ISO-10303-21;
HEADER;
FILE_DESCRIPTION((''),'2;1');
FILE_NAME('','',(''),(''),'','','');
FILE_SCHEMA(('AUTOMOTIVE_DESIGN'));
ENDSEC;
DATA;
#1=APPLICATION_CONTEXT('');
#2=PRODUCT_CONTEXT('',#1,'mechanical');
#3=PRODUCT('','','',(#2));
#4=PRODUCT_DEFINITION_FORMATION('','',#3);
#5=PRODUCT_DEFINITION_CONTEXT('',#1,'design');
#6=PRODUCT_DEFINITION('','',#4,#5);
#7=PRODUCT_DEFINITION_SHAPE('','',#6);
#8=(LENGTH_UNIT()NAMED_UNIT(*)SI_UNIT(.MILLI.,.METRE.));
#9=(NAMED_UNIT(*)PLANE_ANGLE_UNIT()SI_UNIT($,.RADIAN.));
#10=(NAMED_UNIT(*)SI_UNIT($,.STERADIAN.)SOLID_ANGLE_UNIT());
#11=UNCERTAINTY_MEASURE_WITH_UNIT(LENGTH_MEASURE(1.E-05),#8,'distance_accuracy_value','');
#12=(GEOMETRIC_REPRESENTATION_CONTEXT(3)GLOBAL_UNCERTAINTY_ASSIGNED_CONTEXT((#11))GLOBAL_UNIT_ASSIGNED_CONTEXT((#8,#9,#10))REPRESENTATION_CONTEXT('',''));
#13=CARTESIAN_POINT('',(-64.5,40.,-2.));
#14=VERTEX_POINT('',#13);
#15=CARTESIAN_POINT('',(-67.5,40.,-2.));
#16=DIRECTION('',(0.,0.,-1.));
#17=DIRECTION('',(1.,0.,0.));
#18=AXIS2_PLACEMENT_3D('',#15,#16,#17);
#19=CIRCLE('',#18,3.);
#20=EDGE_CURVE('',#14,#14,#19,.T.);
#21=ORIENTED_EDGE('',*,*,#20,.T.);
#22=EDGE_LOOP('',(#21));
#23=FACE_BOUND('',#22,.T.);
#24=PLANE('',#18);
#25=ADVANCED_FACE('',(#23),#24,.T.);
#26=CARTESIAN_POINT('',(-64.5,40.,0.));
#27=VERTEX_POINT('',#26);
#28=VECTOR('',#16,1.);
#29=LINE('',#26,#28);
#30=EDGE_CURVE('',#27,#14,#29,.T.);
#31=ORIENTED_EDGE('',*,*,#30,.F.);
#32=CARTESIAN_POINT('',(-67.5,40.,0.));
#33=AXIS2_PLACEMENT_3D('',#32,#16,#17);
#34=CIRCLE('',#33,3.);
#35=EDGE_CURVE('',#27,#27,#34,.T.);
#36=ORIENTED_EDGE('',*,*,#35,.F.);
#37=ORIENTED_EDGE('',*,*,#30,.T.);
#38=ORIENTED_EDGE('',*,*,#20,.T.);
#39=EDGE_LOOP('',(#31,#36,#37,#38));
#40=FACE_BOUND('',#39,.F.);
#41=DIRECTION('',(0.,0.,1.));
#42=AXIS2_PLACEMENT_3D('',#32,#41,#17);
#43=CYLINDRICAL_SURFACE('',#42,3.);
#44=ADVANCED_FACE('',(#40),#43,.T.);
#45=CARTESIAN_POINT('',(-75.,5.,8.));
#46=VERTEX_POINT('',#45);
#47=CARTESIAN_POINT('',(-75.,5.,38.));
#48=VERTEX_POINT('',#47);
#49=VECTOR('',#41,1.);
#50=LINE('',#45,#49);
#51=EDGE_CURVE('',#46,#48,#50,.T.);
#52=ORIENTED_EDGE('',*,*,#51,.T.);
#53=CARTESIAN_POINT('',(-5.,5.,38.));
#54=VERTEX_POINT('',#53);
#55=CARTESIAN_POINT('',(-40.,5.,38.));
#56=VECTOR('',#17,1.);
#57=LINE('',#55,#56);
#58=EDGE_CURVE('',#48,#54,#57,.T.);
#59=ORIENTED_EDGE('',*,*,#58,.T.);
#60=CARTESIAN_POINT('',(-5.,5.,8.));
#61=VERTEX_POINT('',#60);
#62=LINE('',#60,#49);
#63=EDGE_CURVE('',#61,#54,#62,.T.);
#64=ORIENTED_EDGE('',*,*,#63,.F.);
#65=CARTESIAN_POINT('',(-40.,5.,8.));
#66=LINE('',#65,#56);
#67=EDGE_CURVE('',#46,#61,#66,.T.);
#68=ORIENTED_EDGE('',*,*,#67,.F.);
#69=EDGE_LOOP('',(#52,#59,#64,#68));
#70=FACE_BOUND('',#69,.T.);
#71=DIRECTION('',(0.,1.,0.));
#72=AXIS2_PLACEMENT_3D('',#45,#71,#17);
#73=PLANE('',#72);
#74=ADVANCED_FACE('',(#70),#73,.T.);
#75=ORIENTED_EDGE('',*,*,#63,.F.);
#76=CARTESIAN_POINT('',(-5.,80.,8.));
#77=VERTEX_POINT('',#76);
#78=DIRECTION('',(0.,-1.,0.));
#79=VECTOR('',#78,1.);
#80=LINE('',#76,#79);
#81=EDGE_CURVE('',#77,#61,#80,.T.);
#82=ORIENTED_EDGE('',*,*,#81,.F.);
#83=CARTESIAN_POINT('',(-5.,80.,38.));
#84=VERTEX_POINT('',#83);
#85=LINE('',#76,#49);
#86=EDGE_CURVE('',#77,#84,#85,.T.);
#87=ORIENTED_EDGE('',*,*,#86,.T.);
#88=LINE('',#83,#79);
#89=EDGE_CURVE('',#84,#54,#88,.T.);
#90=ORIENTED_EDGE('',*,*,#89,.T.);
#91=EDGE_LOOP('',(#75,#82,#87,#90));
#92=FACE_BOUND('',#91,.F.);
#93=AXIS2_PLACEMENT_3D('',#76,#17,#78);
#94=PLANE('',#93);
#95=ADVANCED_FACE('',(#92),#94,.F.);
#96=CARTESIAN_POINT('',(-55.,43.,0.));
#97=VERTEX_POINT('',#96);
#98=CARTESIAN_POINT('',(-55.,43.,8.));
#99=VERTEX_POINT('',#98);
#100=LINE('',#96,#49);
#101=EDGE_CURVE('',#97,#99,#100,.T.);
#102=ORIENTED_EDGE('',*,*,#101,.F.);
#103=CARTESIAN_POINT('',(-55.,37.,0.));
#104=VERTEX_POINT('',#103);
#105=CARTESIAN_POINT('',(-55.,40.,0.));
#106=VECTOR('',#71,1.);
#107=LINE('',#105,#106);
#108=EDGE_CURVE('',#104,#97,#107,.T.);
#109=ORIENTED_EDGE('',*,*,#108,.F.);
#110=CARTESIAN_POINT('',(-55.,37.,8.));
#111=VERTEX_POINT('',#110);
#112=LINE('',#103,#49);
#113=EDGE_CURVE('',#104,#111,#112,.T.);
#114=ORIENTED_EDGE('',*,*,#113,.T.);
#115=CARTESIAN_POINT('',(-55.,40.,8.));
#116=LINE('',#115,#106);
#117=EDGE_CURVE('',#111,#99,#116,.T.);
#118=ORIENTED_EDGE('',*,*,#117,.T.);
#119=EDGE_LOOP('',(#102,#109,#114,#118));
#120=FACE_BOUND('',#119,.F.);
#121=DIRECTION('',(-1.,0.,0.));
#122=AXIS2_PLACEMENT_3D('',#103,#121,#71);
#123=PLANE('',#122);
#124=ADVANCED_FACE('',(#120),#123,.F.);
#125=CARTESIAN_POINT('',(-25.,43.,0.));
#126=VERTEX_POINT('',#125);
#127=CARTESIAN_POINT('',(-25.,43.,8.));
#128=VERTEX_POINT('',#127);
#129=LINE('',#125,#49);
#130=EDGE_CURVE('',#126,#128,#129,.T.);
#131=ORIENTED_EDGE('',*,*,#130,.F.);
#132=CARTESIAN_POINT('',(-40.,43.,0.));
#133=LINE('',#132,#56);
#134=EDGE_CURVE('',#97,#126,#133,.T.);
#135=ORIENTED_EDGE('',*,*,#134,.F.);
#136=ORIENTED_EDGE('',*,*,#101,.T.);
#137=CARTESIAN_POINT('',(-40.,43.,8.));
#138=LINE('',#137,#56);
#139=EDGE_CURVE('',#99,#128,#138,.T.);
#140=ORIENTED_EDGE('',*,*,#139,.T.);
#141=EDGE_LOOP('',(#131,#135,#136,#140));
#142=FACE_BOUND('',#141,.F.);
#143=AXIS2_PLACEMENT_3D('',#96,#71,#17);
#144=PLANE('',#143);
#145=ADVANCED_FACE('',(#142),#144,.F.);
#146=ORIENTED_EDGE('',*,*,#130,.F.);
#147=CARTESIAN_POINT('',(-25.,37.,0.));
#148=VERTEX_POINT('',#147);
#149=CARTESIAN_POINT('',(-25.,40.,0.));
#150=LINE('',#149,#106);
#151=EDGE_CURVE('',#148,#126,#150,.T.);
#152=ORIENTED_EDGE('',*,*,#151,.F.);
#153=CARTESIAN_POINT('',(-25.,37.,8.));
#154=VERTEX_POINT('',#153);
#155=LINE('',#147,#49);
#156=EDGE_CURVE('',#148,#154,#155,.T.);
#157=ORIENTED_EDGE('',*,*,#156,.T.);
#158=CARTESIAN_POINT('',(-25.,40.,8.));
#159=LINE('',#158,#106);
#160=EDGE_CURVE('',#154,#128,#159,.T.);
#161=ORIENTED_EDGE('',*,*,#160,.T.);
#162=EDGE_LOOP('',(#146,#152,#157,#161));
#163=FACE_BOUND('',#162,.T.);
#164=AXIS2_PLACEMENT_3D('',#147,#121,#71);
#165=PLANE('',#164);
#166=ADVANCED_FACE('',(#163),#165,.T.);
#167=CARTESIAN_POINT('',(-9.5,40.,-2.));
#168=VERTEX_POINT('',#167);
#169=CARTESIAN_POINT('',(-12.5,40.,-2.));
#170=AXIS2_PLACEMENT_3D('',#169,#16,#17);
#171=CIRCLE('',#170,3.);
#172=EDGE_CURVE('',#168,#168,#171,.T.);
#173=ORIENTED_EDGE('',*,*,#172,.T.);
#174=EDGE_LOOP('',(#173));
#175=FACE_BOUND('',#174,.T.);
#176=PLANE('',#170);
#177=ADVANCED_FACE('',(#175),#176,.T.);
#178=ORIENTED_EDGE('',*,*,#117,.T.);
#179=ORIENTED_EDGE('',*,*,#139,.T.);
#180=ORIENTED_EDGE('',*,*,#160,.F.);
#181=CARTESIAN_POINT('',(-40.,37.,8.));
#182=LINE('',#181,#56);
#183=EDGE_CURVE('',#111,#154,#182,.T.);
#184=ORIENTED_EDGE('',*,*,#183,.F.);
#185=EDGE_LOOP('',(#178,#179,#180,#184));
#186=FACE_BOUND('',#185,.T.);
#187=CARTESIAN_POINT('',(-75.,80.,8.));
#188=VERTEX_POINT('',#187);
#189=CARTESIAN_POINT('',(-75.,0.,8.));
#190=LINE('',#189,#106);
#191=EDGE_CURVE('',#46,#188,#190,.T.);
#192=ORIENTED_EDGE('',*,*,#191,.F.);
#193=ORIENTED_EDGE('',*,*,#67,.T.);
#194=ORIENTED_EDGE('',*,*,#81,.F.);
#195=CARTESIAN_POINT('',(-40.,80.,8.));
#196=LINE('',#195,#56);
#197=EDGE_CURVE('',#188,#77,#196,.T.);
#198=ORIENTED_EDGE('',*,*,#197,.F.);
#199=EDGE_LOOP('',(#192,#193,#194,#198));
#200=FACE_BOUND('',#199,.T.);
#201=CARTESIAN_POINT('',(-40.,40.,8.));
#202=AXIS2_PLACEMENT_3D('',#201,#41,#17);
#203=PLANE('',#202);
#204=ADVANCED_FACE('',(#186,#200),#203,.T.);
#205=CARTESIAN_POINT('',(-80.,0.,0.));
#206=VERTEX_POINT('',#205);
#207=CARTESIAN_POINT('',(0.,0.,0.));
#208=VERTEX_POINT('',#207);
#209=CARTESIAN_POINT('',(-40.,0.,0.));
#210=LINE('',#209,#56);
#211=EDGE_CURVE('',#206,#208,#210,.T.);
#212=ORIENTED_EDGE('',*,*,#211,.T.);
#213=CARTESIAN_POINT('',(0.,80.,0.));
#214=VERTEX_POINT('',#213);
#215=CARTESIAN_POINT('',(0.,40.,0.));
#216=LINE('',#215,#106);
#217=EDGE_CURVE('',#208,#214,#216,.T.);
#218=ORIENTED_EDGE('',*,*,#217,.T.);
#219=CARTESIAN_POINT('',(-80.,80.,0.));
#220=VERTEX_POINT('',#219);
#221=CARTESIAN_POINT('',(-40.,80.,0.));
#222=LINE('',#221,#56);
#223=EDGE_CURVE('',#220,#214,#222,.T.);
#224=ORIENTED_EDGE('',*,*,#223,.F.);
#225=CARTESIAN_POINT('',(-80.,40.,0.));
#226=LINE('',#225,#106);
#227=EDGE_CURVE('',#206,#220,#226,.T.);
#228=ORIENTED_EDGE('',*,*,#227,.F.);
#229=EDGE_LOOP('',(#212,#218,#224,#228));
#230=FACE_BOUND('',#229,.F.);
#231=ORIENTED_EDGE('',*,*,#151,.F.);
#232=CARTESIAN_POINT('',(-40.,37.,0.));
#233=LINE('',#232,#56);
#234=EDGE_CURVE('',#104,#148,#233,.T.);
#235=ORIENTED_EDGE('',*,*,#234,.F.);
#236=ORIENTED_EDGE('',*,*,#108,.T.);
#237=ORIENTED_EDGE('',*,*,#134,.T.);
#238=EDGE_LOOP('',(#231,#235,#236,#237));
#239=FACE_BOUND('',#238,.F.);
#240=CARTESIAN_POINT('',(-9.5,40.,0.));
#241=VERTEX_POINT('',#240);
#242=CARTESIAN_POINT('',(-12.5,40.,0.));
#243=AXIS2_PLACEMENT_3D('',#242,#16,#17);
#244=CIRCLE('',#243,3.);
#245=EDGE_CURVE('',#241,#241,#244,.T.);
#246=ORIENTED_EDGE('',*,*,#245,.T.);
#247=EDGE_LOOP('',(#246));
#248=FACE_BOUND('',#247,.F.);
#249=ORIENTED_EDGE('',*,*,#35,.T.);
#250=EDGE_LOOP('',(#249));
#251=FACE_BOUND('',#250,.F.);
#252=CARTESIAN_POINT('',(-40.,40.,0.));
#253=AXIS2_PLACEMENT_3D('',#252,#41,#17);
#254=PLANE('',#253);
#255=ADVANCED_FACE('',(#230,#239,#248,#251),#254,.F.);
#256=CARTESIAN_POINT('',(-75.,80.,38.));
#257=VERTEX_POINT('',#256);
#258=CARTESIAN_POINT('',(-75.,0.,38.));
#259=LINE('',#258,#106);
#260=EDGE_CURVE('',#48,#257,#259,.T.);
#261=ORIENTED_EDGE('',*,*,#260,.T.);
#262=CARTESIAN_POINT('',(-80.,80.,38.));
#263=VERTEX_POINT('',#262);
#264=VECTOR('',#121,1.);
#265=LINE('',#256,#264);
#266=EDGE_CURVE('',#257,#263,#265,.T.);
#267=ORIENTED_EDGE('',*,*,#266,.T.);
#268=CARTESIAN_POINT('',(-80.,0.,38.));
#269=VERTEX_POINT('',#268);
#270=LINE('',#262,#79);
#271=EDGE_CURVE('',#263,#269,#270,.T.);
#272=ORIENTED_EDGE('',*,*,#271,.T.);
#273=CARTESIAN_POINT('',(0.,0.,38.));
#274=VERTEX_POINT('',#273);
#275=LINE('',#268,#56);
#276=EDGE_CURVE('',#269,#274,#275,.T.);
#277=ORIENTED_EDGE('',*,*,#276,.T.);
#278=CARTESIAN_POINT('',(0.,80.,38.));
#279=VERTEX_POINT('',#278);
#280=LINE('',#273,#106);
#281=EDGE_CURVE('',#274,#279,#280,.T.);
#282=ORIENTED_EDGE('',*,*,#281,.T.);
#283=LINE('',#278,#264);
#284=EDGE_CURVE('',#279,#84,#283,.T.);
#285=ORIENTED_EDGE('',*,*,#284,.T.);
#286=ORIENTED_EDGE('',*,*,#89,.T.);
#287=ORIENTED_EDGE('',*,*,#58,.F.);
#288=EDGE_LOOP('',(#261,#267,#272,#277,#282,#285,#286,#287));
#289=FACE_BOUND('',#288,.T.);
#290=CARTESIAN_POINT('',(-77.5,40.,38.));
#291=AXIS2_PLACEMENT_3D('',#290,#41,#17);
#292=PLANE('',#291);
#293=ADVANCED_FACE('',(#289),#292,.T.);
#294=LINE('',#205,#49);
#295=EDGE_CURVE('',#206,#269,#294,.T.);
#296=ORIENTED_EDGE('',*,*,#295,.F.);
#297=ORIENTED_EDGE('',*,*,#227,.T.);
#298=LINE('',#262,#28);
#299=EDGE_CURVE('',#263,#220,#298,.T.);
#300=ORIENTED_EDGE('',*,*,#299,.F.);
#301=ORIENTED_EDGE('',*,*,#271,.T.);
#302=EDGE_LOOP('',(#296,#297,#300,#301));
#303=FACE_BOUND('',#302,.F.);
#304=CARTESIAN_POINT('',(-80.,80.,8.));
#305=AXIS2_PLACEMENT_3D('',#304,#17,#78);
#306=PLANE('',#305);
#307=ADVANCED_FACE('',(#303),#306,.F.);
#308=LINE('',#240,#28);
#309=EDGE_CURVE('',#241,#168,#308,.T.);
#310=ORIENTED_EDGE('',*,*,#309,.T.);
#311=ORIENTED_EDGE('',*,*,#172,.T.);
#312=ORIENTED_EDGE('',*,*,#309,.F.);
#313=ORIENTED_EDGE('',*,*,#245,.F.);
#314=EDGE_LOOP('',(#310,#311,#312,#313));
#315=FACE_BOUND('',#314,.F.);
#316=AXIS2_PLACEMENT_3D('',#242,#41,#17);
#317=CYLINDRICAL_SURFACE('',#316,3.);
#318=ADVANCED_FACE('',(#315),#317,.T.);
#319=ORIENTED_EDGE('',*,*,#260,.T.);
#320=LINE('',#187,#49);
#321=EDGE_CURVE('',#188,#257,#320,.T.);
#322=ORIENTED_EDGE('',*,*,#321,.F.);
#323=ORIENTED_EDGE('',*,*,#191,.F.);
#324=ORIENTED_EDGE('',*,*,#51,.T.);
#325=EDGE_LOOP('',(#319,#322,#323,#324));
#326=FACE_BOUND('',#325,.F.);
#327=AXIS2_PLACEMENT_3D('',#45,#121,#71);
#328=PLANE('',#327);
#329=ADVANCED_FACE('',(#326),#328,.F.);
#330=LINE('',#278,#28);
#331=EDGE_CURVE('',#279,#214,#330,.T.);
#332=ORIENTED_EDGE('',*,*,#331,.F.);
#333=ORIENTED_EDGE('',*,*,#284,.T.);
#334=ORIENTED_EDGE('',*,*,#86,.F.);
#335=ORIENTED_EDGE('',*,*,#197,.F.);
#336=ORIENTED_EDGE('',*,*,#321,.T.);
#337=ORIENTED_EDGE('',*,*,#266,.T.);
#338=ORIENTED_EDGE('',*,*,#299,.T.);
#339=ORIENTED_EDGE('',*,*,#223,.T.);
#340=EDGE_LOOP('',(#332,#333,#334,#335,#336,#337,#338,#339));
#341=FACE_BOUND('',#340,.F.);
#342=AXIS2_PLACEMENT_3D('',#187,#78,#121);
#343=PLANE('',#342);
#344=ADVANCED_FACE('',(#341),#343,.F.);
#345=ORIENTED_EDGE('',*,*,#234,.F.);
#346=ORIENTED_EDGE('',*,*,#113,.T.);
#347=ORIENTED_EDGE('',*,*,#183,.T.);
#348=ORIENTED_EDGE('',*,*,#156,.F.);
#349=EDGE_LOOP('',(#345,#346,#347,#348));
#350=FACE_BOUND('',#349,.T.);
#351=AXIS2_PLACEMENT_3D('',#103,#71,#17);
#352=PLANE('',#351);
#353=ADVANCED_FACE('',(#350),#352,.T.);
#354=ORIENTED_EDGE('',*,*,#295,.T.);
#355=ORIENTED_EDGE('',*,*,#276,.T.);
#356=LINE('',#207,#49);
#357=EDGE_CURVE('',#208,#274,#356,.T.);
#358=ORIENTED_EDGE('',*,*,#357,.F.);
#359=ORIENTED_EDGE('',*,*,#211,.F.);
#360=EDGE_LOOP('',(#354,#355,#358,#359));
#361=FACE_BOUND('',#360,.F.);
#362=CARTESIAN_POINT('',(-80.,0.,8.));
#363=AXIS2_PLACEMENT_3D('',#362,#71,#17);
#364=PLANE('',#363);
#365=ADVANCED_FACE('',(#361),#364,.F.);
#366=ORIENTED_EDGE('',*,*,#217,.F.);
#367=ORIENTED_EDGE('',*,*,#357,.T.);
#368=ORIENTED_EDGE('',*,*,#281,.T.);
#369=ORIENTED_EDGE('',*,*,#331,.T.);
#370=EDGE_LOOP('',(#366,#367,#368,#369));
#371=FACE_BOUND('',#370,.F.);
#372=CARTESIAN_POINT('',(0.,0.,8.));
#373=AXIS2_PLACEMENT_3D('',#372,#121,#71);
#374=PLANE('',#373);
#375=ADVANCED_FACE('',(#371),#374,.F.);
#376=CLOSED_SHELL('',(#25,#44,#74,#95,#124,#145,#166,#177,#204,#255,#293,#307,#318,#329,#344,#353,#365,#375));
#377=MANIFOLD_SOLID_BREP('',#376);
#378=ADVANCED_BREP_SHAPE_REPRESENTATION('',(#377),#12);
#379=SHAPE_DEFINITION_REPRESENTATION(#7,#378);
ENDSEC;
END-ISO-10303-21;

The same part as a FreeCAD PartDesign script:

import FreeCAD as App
import Part
import Sketcher
from FreeCAD import Vector

doc = App.newDocument("Part")
body = doc.addObject("PartDesign::Body", "Body")

sketch1 = body.newObject("Sketcher::SketchObject", "Sketch")
sketch1.AttachmentSupport = (doc.getObject("XY_Plane"), [""])
sketch1.MapMode = "FlatFace"
sketch1.addGeometry([
    Part.LineSegment(Vector(-80, 80, 0), Vector(-80, 0, 0)),
    Part.LineSegment(Vector(-80, 0, 0), Vector(0, 0, 0)),
    Part.LineSegment(Vector(0, 0, 0), Vector(0, 80, 0)),
    Part.LineSegment(Vector(0, 80, 0), Vector(-80, 80, 0)),
    Part.LineSegment(Vector(-25, 37, 0), Vector(-55, 37, 0)),
    Part.LineSegment(Vector(-55, 37, 0), Vector(-55, 43, 0)),
    Part.LineSegment(Vector(-55, 43, 0), Vector(-25, 43, 0)),
    Part.LineSegment(Vector(-25, 43, 0), Vector(-25, 37, 0)),
], False)
sketch1.addConstraint([
    Sketcher.Constraint("Coincident", 0, 2, 1, 1),
    Sketcher.Constraint("Coincident", 1, 2, 2, 1),
    Sketcher.Constraint("Coincident", 2, 2, 3, 1),
    Sketcher.Constraint("Coincident", 3, 2, 0, 1),
    Sketcher.Constraint("Coincident", 4, 2, 5, 1),
    Sketcher.Constraint("Coincident", 5, 2, 6, 1),
    Sketcher.Constraint("Coincident", 6, 2, 7, 1),
    Sketcher.Constraint("Coincident", 7, 2, 4, 1),
    Sketcher.Constraint("Vertical", 0),
    Sketcher.Constraint("Horizontal", 1),
    Sketcher.Constraint("Vertical", 2),
    Sketcher.Constraint("Horizontal", 3),
    Sketcher.Constraint("Horizontal", 4),
    Sketcher.Constraint("Vertical", 5),
    Sketcher.Constraint("Horizontal", 6),
    Sketcher.Constraint("Vertical", 7),
    Sketcher.Constraint("Coincident", 1, 2, -1, 1),
    Sketcher.Constraint("Equal", 3, 0),
    Sketcher.Constraint("DistanceX", 1, 1, 1, 2, 80.0),
    Sketcher.Constraint("DistanceX", 4, 2, 4, 1, 30.0),
    Sketcher.Constraint("DistanceY", 5, 1, 5, 2, 6.0),
    Sketcher.Constraint("DistanceX", 4, 2, -1, 1, 55.0),
    Sketcher.Constraint("DistanceY", -1, 1, 4, 2, 37.0),
])
pad1 = body.newObject("PartDesign::Pad", "Pad")
pad1.Profile = sketch1
pad1.Length = 8

sketch2 = body.newObject("Sketcher::SketchObject", "Sketch001")
sketch2.AttachmentSupport = (doc.getObject("XY_Plane"), [""])
sketch2.MapMode = "FlatFace"
sketch2.AttachmentOffset = App.Placement(Vector(0, 0, 8), App.Rotation())
sketch2.addGeometry([
    Part.LineSegment(Vector(-80, 80, 0), Vector(-80, 0, 0)),
    Part.LineSegment(Vector(-80, 0, 0), Vector(0, 0, 0)),
    Part.LineSegment(Vector(0, 0, 0), Vector(0, 80, 0)),
    Part.LineSegment(Vector(0, 80, 0), Vector(-5, 80, 0)),
    Part.LineSegment(Vector(-5, 80, 0), Vector(-5, 5, 0)),
    Part.LineSegment(Vector(-5, 5, 0), Vector(-75, 5, 0)),
    Part.LineSegment(Vector(-75, 5, 0), Vector(-75, 80, 0)),
    Part.LineSegment(Vector(-75, 80, 0), Vector(-80, 80, 0)),
], False)
sketch2.addConstraint([
    Sketcher.Constraint("Coincident", 0, 2, 1, 1),
    Sketcher.Constraint("Coincident", 1, 2, 2, 1),
    Sketcher.Constraint("Coincident", 2, 2, 3, 1),
    Sketcher.Constraint("Coincident", 3, 2, 4, 1),
    Sketcher.Constraint("Coincident", 4, 2, 5, 1),
    Sketcher.Constraint("Coincident", 5, 2, 6, 1),
    Sketcher.Constraint("Coincident", 6, 2, 7, 1),
    Sketcher.Constraint("Coincident", 7, 2, 0, 1),
    Sketcher.Constraint("Vertical", 0),
    Sketcher.Constraint("Horizontal", 1),
    Sketcher.Constraint("Vertical", 2),
    Sketcher.Constraint("Horizontal", 3),
    Sketcher.Constraint("Vertical", 4),
    Sketcher.Constraint("Horizontal", 5),
    Sketcher.Constraint("Vertical", 6),
    Sketcher.Constraint("Horizontal", 7),
    Sketcher.Constraint("Coincident", 1, 2, -1, 1),
    Sketcher.Constraint("Horizontal", 3, 2, 6, 2),
    Sketcher.Constraint("Equal", 3, 7),
    Sketcher.Constraint("Equal", 1, 0),
    Sketcher.Constraint("DistanceX", 1, 1, 1, 2, 80.0),
    Sketcher.Constraint("DistanceX", 3, 2, 3, 1, 5.0),
    Sketcher.Constraint("DistanceY", 4, 2, 4, 1, 75.0),
])
pad2 = body.newObject("PartDesign::Pad", "Pad001")
pad2.Profile = sketch2
pad2.Length = 30

sketch3 = body.newObject("Sketcher::SketchObject", "Sketch002")
sketch3.AttachmentSupport = (doc.getObject("XY_Plane"), [""])
sketch3.MapMode = "FlatFace"
sketch3.addGeometry([
    Part.Circle(Vector(-67.5, 40, 0), Vector(0, 0, 1), 3),
    Part.Circle(Vector(-12.5, 40, 0), Vector(0, 0, 1), 3),
], False)
sketch3.addConstraint([
    Sketcher.Constraint("Equal", 0, 1),
    Sketcher.Constraint("Horizontal", 0, 3, 1, 3),
    Sketcher.Constraint("Diameter", 0, 6.0),
    Sketcher.Constraint("DistanceY", -1, 1, 0, 3, 40.0),
    Sketcher.Constraint("DistanceX", 0, 3, 1, 3, 55.0),
    Sketcher.Constraint("DistanceX", 0, 3, -1, 1, 67.5),
])
pad3 = body.newObject("PartDesign::Pad", "Pad002")
pad3.Profile = sketch3
pad3.Length = 2
pad3.Reversed = True

doc.recompute()
